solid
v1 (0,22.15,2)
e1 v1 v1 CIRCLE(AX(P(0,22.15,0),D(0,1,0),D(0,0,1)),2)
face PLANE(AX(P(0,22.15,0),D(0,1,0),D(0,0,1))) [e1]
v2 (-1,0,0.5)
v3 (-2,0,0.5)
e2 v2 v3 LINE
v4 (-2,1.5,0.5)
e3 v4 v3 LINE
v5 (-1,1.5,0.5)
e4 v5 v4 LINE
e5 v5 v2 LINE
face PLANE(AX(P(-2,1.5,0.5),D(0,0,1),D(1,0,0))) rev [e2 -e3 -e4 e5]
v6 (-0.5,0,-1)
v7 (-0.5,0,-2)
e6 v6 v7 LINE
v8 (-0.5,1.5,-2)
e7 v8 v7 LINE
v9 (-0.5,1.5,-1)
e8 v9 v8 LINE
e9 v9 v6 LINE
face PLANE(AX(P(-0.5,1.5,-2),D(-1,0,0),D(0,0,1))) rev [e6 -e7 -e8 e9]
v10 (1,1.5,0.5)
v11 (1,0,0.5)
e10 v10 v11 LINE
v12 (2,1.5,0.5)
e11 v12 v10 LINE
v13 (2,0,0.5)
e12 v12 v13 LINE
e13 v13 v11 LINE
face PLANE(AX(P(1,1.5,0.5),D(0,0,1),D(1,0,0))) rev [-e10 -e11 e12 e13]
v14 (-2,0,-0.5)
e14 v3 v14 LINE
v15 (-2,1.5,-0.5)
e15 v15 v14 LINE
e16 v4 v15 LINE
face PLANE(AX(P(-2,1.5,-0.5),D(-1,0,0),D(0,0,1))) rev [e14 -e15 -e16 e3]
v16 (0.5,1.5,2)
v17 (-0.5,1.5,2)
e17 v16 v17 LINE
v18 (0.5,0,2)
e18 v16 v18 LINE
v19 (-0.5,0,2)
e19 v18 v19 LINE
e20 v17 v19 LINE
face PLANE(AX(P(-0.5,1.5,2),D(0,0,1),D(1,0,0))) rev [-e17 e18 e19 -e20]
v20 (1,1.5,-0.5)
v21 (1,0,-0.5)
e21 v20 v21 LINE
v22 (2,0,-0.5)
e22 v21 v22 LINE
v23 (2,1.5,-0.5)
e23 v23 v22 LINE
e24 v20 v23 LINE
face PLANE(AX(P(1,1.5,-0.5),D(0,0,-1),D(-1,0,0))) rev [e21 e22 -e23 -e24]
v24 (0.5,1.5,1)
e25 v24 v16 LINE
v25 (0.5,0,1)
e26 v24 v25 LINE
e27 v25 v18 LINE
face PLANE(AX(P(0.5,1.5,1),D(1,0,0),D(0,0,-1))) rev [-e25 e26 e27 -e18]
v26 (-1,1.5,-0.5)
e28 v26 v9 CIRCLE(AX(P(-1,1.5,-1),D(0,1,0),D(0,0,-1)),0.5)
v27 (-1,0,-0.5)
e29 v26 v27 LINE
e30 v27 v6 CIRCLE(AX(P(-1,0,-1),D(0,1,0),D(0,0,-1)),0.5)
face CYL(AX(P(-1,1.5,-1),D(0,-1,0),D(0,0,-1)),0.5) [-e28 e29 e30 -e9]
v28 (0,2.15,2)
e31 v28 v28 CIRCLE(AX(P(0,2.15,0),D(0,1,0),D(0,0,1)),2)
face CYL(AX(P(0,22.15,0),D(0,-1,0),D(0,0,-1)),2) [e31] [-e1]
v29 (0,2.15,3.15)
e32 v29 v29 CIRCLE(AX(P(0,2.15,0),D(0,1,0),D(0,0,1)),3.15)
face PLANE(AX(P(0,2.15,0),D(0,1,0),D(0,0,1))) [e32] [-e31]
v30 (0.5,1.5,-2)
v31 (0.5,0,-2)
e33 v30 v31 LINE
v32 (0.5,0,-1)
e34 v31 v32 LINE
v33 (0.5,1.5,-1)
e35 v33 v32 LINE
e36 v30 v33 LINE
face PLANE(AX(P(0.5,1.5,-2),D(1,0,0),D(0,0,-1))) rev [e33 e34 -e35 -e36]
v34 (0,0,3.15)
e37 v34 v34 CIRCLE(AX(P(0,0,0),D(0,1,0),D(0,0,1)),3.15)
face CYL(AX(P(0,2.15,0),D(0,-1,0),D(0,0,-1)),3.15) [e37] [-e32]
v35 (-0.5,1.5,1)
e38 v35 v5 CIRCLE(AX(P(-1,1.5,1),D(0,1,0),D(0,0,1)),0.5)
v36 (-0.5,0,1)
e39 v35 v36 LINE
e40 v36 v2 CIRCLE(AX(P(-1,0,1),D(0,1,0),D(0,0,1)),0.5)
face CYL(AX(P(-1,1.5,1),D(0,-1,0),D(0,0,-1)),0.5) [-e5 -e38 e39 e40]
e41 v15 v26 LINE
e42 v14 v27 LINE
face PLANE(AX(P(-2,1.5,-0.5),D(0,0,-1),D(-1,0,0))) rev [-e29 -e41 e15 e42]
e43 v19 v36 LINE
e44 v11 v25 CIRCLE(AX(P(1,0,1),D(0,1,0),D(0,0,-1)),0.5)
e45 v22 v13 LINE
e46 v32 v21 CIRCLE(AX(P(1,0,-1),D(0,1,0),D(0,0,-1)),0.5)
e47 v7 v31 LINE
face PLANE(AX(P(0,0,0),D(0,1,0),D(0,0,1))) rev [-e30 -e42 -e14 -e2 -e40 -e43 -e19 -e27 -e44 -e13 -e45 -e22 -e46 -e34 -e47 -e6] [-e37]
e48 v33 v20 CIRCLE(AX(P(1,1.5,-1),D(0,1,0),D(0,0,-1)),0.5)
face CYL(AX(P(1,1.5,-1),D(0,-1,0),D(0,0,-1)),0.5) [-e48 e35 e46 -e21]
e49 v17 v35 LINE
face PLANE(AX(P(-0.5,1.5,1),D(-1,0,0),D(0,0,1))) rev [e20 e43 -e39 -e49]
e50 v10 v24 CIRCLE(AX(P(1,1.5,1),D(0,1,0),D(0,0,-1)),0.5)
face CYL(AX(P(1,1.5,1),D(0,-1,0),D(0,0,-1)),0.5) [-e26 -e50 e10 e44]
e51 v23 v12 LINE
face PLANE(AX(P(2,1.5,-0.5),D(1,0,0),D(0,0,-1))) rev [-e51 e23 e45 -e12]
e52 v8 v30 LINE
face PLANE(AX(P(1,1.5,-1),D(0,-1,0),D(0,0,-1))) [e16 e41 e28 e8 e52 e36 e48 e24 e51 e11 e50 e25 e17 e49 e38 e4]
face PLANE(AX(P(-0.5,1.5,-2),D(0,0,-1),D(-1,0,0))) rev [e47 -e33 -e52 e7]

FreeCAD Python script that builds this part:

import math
import FreeCAD as App
import Part
import Sketcher
from FreeCAD import Vector
Q = App.Units.Quantity

doc = App.newDocument("Part")
params = doc.addObject("Spreadsheet::Sheet", "Params")
for row, (alias, value) in enumerate([
    ("sketch1_diameter", "6.3 mm"),
    ("pad1_length", "2.15 mm"),
    ("sketch2_diameter", "4 mm"),
    ("pad2_length", "20 mm"),
    ("sketch3_radius", "0.5 mm"),
    ("sketch3_width", "1 mm"),
    ("pocket1_length", "1.5 mm"),
], start=1):
    params.set(f"A{row}", alias)
    params.set(f"B{row}", "=" + value)
    params.setAlias(f"B{row}", alias)

body = doc.addObject("PartDesign::Body", "Body")

# Sketch on XZ plane
sketch1 = doc.addObject("Sketcher::SketchObject", "Sketch")
body.addObject(sketch1)
sketch1.AttachmentSupport = (doc.XZ_Plane, [""])
sketch1.MapMode = "FlatFace"
sketch1.addGeometry(Part.Circle(Vector(0, 0, 0), Vector(0, 0, 1), 3.15), False)
sketch1.addConstraint([
    Sketcher.Constraint("Coincident", 0, 3, -1, 1),
    Sketcher.Constraint("Diameter", 0, Q("6.3 mm")),
])
sketch1.setExpression("Constraints[1]", "Params.sketch1_diameter")
pad1 = doc.addObject("PartDesign::Pad", "Pad")
body.addObject(pad1)
pad1.Profile = sketch1
pad1.setExpression("Length", "Params.pad1_length")
pad1.Reversed = True

# Sketch on XZ plane
sketch2 = doc.addObject("Sketcher::SketchObject", "Sketch001")
body.addObject(sketch2)
sketch2.AttachmentSupport = (doc.XZ_Plane, [""])
sketch2.MapMode = "FlatFace"
sketch2.AttachmentOffset = App.Placement(Vector(0, 0, -2.15), App.Rotation())
sketch2.addGeometry(Part.Circle(Vector(0, 0, 0), Vector(0, 0, 1), 2), False)
sketch2.addConstraint([
    Sketcher.Constraint("Coincident", 0, 3, -1, 1),
    Sketcher.Constraint("Diameter", 0, Q("4 mm")),
])
sketch2.setExpression("Constraints[1]", "Params.sketch2_diameter")
pad2 = doc.addObject("PartDesign::Pad", "Pad001")
body.addObject(pad2)
pad2.Profile = sketch2
pad2.setExpression("Length", "Params.pad2_length")
pad2.Reversed = True

# Sketch on XZ plane
sketch3 = doc.addObject("Sketcher::SketchObject", "Sketch002")
body.addObject(sketch3)
sketch3.AttachmentSupport = (doc.XZ_Plane, [""])
sketch3.MapMode = "FlatFace"
sketch3.addGeometry([
    Part.LineSegment(Vector(-0.5, 2, 0), Vector(-0.5, 1, 0)),  # 0
    Part.ArcOfCircle(Part.Circle(Vector(-1, 1, 0), Vector(0, 0, 1), 0.5), math.radians(-90), math.radians(0)),  # 1
    Part.LineSegment(Vector(-1, 0.5, 0), Vector(-2, 0.5, 0)),  # 2
    Part.LineSegment(Vector(-2, 0.5, 0), Vector(-2, -0.5, 0)),  # 3
    Part.LineSegment(Vector(-2, -0.5, 0), Vector(-1, -0.5, 0)),  # 4
    Part.ArcOfCircle(Part.Circle(Vector(-1, -1, 0), Vector(0, 0, 1), 0.5), math.radians(0), math.radians(90)),  # 5
    Part.LineSegment(Vector(-0.5, -1, 0), Vector(-0.5, -2, 0)),  # 6
    Part.LineSegment(Vector(-0.5, -2, 0), Vector(0.5, -2, 0)),  # 7
    Part.LineSegment(Vector(0.5, -2, 0), Vector(0.5, -1, 0)),  # 8
    Part.ArcOfCircle(Part.Circle(Vector(1, -1, 0), Vector(0, 0, 1), 0.5), math.radians(90), math.radians(180)),  # 9
    Part.LineSegment(Vector(1, -0.5, 0), Vector(2, -0.5, 0)),  # 10
    Part.LineSegment(Vector(2, -0.5, 0), Vector(2, 0.5, 0)),  # 11
    Part.LineSegment(Vector(2, 0.5, 0), Vector(1, 0.5, 0)),  # 12
    Part.ArcOfCircle(Part.Circle(Vector(1, 1, 0), Vector(0, 0, 1), 0.5), math.radians(180), math.radians(270)),  # 13
    Part.LineSegment(Vector(0.5, 1, 0), Vector(0.5, 2, 0)),  # 14
    Part.LineSegment(Vector(0.5, 2, 0), Vector(-0.5, 2, 0)),  # 15
], False)
sketch3.addConstraint([
    Sketcher.Constraint("Tangent", 0, 2, 1, 2),
    Sketcher.Constraint("Tangent", 1, 1, 2, 1),
    Sketcher.Constraint("Coincident", 2, 2, 3, 1),
    Sketcher.Constraint("Coincident", 3, 2, 4, 1),
    Sketcher.Constraint("Tangent", 4, 2, 5, 2),
    Sketcher.Constraint("Tangent", 5, 1, 6, 1),
    Sketcher.Constraint("Coincident", 6, 2, 7, 1),
    Sketcher.Constraint("Coincident", 7, 2, 8, 1),
    Sketcher.Constraint("Tangent", 8, 2, 9, 2),
    Sketcher.Constraint("Tangent", 9, 1, 10, 1),
    Sketcher.Constraint("Coincident", 10, 2, 11, 1),
    Sketcher.Constraint("Coincident", 11, 2, 12, 1),
    Sketcher.Constraint("Tangent", 12, 2, 13, 2),
    Sketcher.Constraint("Tangent", 13, 1, 14, 1),
    Sketcher.Constraint("Coincident", 14, 2, 15, 1),
    Sketcher.Constraint("Coincident", 15, 2, 0, 1),
    Sketcher.Constraint("Vertical", 0),
    Sketcher.Constraint("Horizontal", 2),
    Sketcher.Constraint("Vertical", 3),
    Sketcher.Constraint("Horizontal", 4),
    Sketcher.Constraint("Vertical", 6),
    Sketcher.Constraint("Horizontal", 7),
    Sketcher.Constraint("Vertical", 8),
    Sketcher.Constraint("Horizontal", 10),
    Sketcher.Constraint("Vertical", 11),
    Sketcher.Constraint("Horizontal", 12),
    Sketcher.Constraint("Vertical", 14),
    Sketcher.Constraint("Horizontal", 15),
    Sketcher.Constraint("Equal", 1, 5),
    Sketcher.Constraint("Equal", 5, 9),
    Sketcher.Constraint("Equal", 9, 13),
    Sketcher.Constraint("Symmetric", 1, 3, 9, 3, -1, 1),
    Sketcher.Constraint("Symmetric", 5, 3, 13, 3, -1, 1),
    Sketcher.Constraint("Symmetric", 5, 3, 9, 3, -2),
    Sketcher.Constraint("Equal", 4, 7),
    Sketcher.Constraint("Equal", 7, 10),
    Sketcher.Constraint("Equal", 15, 0),
    Sketcher.Constraint("Equal", 0, 3),
    Sketcher.Constraint("Equal", 3, 6),
    Sketcher.Constraint("Radius", 1, Q("0.5 mm")),
    Sketcher.Constraint("DistanceX", 2, 2, 2, 1, Q("1 mm")),
])
sketch3.setExpression("Constraints[39]", "Params.sketch3_radius")
sketch3.setExpression("Constraints[40]", "Params.sketch3_width")
pocket1 = doc.addObject("PartDesign::Pocket", "Pocket")
body.addObject(pocket1)
pocket1.Profile = sketch3
pocket1.setExpression("Length", "Params.pocket1_length")

doc.recompute()
